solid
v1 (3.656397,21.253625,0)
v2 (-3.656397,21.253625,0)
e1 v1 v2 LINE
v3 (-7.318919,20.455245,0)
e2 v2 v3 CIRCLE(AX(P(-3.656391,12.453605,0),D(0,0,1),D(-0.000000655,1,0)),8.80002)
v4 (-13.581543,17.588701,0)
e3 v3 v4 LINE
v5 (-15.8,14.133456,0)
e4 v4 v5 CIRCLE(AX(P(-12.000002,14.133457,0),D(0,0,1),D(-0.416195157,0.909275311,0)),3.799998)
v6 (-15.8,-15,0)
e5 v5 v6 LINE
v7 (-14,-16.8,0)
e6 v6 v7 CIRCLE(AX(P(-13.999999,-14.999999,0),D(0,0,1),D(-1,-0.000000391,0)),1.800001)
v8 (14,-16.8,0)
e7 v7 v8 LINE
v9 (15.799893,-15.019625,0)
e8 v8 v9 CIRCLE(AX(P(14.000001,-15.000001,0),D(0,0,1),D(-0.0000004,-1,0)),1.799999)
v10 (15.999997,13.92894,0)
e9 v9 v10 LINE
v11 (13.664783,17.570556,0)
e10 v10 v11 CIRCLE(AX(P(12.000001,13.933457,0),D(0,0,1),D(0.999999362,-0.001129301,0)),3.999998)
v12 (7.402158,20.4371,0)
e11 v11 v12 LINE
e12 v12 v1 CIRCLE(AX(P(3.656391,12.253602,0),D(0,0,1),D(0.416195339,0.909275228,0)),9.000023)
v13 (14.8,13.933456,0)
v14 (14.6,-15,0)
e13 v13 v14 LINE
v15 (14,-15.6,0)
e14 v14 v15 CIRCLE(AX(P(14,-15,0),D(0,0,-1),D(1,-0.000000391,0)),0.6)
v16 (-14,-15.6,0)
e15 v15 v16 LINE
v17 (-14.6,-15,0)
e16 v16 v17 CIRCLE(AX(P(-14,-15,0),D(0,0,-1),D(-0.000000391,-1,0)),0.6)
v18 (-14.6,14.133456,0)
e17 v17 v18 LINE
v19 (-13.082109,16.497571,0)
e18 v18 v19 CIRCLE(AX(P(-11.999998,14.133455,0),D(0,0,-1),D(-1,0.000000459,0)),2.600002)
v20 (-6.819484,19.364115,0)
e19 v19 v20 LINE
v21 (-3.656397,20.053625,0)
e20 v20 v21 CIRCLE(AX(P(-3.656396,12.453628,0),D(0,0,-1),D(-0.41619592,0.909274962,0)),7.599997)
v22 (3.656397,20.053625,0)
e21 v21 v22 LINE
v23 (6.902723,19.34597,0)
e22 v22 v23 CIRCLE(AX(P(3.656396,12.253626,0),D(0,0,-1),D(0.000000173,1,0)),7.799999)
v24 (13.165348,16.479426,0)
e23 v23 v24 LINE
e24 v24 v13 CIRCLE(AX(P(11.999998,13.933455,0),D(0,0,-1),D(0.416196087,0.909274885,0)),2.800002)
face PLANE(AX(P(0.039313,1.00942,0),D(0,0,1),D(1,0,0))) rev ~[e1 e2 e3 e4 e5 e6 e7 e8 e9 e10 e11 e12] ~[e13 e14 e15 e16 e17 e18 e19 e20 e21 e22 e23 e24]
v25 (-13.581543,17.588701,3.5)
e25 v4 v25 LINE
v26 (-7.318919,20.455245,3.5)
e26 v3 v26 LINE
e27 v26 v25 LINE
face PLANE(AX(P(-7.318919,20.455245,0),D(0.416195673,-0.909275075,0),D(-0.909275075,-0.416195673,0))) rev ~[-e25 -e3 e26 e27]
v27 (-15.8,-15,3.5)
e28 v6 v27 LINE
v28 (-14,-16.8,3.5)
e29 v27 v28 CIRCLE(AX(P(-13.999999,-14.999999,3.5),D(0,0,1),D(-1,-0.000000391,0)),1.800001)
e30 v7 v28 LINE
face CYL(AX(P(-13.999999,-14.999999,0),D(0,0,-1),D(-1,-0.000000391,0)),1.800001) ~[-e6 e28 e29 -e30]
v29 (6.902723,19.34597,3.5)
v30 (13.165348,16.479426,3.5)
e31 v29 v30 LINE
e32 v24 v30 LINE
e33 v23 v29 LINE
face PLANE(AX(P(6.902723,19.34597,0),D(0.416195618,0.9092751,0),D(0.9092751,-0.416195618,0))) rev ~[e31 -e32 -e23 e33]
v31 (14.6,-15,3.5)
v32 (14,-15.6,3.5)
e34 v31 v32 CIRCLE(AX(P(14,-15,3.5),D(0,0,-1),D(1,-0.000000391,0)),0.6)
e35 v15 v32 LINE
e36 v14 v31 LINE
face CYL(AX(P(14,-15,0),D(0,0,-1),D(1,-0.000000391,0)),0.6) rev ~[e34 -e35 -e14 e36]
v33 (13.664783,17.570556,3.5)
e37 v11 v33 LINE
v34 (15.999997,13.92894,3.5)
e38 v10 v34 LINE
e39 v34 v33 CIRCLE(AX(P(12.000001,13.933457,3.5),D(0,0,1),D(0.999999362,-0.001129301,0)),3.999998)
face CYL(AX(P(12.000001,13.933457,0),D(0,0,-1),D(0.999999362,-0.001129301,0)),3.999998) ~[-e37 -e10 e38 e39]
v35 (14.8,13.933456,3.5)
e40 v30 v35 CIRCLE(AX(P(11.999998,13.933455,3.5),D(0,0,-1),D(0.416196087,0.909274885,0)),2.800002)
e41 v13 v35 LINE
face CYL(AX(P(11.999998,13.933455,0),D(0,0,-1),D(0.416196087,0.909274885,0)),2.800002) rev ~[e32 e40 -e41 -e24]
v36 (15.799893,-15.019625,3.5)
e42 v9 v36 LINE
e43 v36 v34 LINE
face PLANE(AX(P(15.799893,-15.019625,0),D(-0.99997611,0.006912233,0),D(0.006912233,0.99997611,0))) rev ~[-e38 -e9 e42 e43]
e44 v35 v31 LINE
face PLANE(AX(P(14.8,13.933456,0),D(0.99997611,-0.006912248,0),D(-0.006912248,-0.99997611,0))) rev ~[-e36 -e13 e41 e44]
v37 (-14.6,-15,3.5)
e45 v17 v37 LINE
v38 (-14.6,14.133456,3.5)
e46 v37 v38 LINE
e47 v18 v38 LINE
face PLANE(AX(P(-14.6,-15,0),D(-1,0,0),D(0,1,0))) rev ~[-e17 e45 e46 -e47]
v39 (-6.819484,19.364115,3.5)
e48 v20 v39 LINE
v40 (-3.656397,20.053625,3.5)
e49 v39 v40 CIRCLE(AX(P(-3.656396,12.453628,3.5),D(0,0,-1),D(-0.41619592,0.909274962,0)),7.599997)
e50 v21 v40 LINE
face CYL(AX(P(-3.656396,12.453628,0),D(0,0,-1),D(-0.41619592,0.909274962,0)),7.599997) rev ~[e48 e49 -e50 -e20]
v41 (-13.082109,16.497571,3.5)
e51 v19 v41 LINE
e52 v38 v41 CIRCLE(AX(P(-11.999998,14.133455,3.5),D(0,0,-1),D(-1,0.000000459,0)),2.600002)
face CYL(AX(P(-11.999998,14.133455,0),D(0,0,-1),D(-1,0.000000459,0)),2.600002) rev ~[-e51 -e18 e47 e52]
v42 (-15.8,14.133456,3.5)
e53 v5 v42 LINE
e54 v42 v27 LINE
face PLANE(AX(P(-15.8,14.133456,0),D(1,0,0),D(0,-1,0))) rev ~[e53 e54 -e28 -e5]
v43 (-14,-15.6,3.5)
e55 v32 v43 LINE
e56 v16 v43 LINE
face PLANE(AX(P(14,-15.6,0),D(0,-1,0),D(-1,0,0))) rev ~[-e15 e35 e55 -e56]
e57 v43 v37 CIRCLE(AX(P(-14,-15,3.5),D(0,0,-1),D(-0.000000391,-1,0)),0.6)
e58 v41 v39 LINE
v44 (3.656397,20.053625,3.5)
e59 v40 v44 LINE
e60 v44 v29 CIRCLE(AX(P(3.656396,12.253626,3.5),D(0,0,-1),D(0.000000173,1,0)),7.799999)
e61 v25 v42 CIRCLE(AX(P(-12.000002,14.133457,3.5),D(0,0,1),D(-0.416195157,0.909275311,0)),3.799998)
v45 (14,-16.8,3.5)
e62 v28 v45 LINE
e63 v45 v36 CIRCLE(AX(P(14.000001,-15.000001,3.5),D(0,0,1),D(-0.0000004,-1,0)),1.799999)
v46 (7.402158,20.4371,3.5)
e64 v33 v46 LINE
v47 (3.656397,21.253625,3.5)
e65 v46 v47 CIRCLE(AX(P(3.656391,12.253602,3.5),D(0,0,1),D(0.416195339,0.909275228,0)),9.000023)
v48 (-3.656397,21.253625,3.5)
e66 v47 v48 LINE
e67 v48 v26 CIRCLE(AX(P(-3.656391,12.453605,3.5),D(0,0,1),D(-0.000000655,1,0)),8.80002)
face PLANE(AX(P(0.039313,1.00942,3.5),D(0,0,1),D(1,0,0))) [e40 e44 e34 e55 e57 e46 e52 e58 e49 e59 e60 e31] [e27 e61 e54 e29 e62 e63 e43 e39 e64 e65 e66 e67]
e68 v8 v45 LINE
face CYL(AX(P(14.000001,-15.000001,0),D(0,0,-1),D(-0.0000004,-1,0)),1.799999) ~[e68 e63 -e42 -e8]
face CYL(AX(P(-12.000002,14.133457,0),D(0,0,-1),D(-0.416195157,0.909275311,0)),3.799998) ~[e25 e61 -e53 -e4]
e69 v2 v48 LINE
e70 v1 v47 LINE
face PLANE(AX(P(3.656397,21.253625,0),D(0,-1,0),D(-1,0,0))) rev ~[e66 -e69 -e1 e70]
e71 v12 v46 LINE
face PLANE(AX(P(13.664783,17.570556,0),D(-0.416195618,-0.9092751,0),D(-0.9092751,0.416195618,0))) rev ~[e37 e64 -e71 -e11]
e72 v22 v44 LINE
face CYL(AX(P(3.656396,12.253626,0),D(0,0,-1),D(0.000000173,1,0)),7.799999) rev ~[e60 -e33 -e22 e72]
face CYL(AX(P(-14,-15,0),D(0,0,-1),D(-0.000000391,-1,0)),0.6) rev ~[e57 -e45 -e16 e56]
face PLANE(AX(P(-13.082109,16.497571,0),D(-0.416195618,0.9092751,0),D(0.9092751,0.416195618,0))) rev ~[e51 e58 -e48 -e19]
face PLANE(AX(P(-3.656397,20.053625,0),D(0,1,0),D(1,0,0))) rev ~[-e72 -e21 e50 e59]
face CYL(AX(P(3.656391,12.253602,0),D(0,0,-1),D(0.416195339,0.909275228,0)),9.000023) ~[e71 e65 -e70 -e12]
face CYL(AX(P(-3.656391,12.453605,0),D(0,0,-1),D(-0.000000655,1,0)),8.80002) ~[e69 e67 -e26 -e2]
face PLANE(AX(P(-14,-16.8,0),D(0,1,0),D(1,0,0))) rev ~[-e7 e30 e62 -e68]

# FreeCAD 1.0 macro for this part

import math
import FreeCAD as App
import Part
import Sketcher
from FreeCAD import Vector

doc = App.newDocument("Part")
params = doc.addObject("Spreadsheet::Sheet", "Params")
for row, (alias, value) in enumerate([
    ("sketch1_radius", "3.999998 mm"),
    ("sketch1_radius2", "1.800001 mm"),
    ("sketch1_radius3", "1.799999 mm"),
    ("sketch1_radius4", "2.600002 mm"),
    ("sketch1_radius5", "7.799999 mm"),
    ("pad1_length", "3.5 mm"),
], start=1):
    params.set(f"A{row}", alias)
    params.set(f"B{row}", "=" + value)
    params.setAlias(f"B{row}", alias)

body = doc.addObject("PartDesign::Body", "Body")

# Sketch on XY plane
sketch1 = body.newObject("Sketcher::SketchObject", "Sketch")
sketch1.AttachmentSupport = (doc.getObject("XY_Plane"), [""])
sketch1.MapMode = "FlatFace"
sketch1.addGeometry([
    Part.LineSegment(Vector(-7.318919, 20.455245, 0), Vector(-13.581543, 17.588701, 0)),  # 0
    Part.ArcOfCircle(Part.Circle(Vector(-12.000002, 14.133457, 0), Vector(0, 0, 1), 3.799998), math.radians(114.594604), math.radians(180.000015)),  # 1
    Part.LineSegment(Vector(-15.8, 14.133456, 0), Vector(-15.8, -15, 0)),  # 2
    Part.ArcOfCircle(Part.Circle(Vector(-13.999999, -14.999999, 0), Vector(0, 0, 1), 1.800001), math.radians(-179.999978), math.radians(-90.000022)),  # 3
    Part.LineSegment(Vector(-14, -16.8, 0), Vector(14, -16.8, 0)),  # 4
    Part.ArcOfCircle(Part.Circle(Vector(14.000001, -15.000001, 0), Vector(0, 0, 1), 1.799999), math.radians(-90.000023), math.radians(-0.624672)),  # 5
    Part.LineSegment(Vector(15.799893, -15.019625, 0), Vector(15.999997, 13.92894, 0)),  # 6
    Part.ArcOfCircle(Part.Circle(Vector(12.000001, 13.933457, 0), Vector(0, 0, 1), 3.999998), math.radians(-0.064704), math.radians(65.405368)),  # 7
    Part.LineSegment(Vector(13.664783, 17.570556, 0), Vector(7.402158, 20.4371, 0)),  # 8
    Part.ArcOfCircle(Part.Circle(Vector(3.656391, 12.253602, 0), Vector(0, 0, 1), 9.000023), math.radians(65.405385), math.radians(89.999959)),  # 9
    Part.LineSegment(Vector(3.656397, 21.253625, 0), Vector(-3.656397, 21.253625, 0)),  # 10
    Part.ArcOfCircle(Part.Circle(Vector(-3.656391, 12.453605, 0), Vector(0, 0, 1), 8.80002), math.radians(90.000038), math.radians(114.594618)),  # 11
    Part.LineSegment(Vector(-14.6, -15, 0), Vector(-14.6, 14.133456, 0)),  # 12
    Part.ArcOfCircle(Part.Circle(Vector(-11.999998, 14.133455, 0), Vector(0, 0, 1), 2.600002), math.radians(114.594667), math.radians(179.999974)),  # 13
    Part.LineSegment(Vector(-13.082109, 16.497571, 0), Vector(-6.819484, 19.364115, 0)),  # 14
    Part.ArcOfCircle(Part.Circle(Vector(-3.656396, 12.453628, 0), Vector(0, 0, 1), 7.599997), math.radians(90.000005), math.radians(114.594652)),  # 15
    Part.LineSegment(Vector(-3.656397, 20.053625, 0), Vector(3.656397, 20.053625, 0)),  # 16
    Part.ArcOfCircle(Part.Circle(Vector(3.656396, 12.253626, 0), Vector(0, 0, 1), 7.799999), math.radians(65.405352), math.radians(89.99999)),  # 17
    Part.LineSegment(Vector(6.902723, 19.34597, 0), Vector(13.165348, 16.479426, 0)),  # 18
    Part.ArcOfCircle(Part.Circle(Vector(11.999998, 13.933455, 0), Vector(0, 0, 1), 2.800002), math.radians(0.000027), math.radians(65.405338)),  # 19
    Part.LineSegment(Vector(14.8, 13.933456, 0), Vector(14.6, -15, 0)),  # 20
    Part.ArcOfCircle(Part.Circle(Vector(14, -15, 0), Vector(0, 0, 1), 0.6), math.radians(-89.999978), math.radians(-0.000022)),  # 21
    Part.LineSegment(Vector(14, -15.6, 0), Vector(-14, -15.6, 0)),  # 22
    Part.ArcOfCircle(Part.Circle(Vector(-14, -15, 0), Vector(0, 0, 1), 0.6), math.radians(-179.999978), math.radians(-90.000022)),  # 23
], False)
sketch1.addConstraint([
    Sketcher.Constraint("Coincident", 0, 2, 1, 1),
    Sketcher.Constraint("Coincident", 1, 2, 2, 1),
    Sketcher.Constraint("Coincident", 2, 2, 3, 1),
    Sketcher.Constraint("Coincident", 3, 2, 4, 1),
    Sketcher.Constraint("Coincident", 4, 2, 5, 1),
    Sketcher.Constraint("Coincident", 5, 2, 6, 1),
    Sketcher.Constraint("Coincident", 6, 2, 7, 1),
    Sketcher.Constraint("Coincident", 7, 2, 8, 1),
    Sketcher.Constraint("Coincident", 8, 2, 9, 1),
    Sketcher.Constraint("Coincident", 9, 2, 10, 1),
    Sketcher.Constraint("Coincident", 10, 2, 11, 1),
    Sketcher.Constraint("Coincident", 11, 2, 0, 1),
    Sketcher.Constraint("Coincident", 12, 2, 13, 2),
    Sketcher.Constraint("Coincident", 13, 1, 14, 1),
    Sketcher.Constraint("Coincident", 14, 2, 15, 2),
    Sketcher.Constraint("Coincident", 15, 1, 16, 1),
    Sketcher.Constraint("Coincident", 16, 2, 17, 2),
    Sketcher.Constraint("Coincident", 17, 1, 18, 1),
    Sketcher.Constraint("Coincident", 18, 2, 19, 2),
    Sketcher.Constraint("Coincident", 19, 1, 20, 1),
    Sketcher.Constraint("Coincident", 20, 2, 21, 2),
    Sketcher.Constraint("Coincident", 21, 1, 22, 1),
    Sketcher.Constraint("Coincident", 22, 2, 23, 2),
    Sketcher.Constraint("Coincident", 23, 1, 12, 1),
    Sketcher.Constraint("Vertical", 2),
    Sketcher.Constraint("Horizontal", 4),
    Sketcher.Constraint("Horizontal", 10),
    Sketcher.Constraint("Vertical", 12),
    Sketcher.Constraint("Horizontal", 16),
    Sketcher.Constraint("Horizontal", 22),
    Sketcher.Constraint("Coincident", 13, 3, 1, 3),
    Sketcher.Constraint("Coincident", 19, 3, 7, 3),
    Sketcher.Constraint("Coincident", 21, 3, 5, 3),
    Sketcher.Constraint("Coincident", 23, 3, 3, 3),
    Sketcher.Constraint("Radius", 7, 3.999998),
    Sketcher.Constraint("Radius", 3, 1.800001),
    Sketcher.Constraint("Radius", 5, 1.799999),
    Sketcher.Constraint("Radius", 13, 2.600002),
    Sketcher.Constraint("Radius", 17, 7.799999),
    Sketcher.Constraint("Radius", 19, 2.800002),
    Sketcher.Constraint("Radius", 21, 0.6),
    Sketcher.Constraint("DistanceX", 4, 1, 4, 2, 28.0),
    Sketcher.Constraint("DistanceX", 22, 2, 22, 1, 28.0),
    Sketcher.Constraint("DistanceX", 3, 3, -1, 1, 13.999999),
    Sketcher.Constraint("DistanceY", 3, 3, -1, 1, 14.999999),
    Sketcher.Constraint("DistanceX", -1, 1, 5, 3, 14.000001),
    Sketcher.Constraint("DistanceX", -1, 1, 7, 3, 12.000001),
    Sketcher.Constraint("DistanceY", 2, 2, -1, 1, 15.0),
    Sketcher.Constraint("DistanceX", 3, 2, -1, 1, 14.0),
    Sketcher.Constraint("DistanceY", 20, 2, -1, 1, 15.0),
    Sketcher.Constraint("DistanceX", -1, 1, 21, 1, 14.0),
    Sketcher.Constraint("DistanceY", 23, 1, -1, 1, 15.0),
    Sketcher.Constraint("DistanceY", 17, 3, 9, 2, 8.999999),
    Sketcher.Constraint("DistanceY", 7, 3, 1, 3, 0.2),
    Sketcher.Constraint("Radius", 11, 8.80002),
    Sketcher.Constraint("Radius", 9, 9.000023),
    Sketcher.Constraint("Radius", 15, 7.599997),
    Sketcher.Constraint("DistanceY", -1, 1, 0, 2, 17.588701),
    Sketcher.Constraint("DistanceY", -1, 1, 8, 2, 20.4371),
    Sketcher.Constraint("DistanceY", 3, 3, 9, 3, 27.253602),
    Sketcher.Constraint("DistanceX", 13, 3, 15, 3, 8.343602),
    Sketcher.Constraint("DistanceX", 17, 3, 6, 2, 12.343601),
    Sketcher.Constraint("DistanceY", 7, 3, 7, 2, 3.637099),
    Sketcher.Constraint("DistanceX", 9, 2, 19, 3, 8.343601),
    Sketcher.Constraint("DistanceX", 13, 3, 10, 2, 8.343601),
    Sketcher.Constraint("DistanceY", 19, 1, 7, 2, 3.6371),
    Sketcher.Constraint("Distance", 0, 6.887491),
    Sketcher.Constraint("DistanceX", 16, 1, 16, 2, 7.312794),
    Sketcher.Constraint("DistanceY", 2, 2, 2, 1, 29.133456),
    Sketcher.Constraint("DistanceY", 12, 1, 12, 2, 29.133456),
    Sketcher.Constraint("DistanceX", -1, 1, 9, 3, 3.656391),
    Sketcher.Constraint("DistanceX", 11, 3, -1, 1, 3.656391),
    Sketcher.Constraint("DistanceY", -1, 1, 6, 2, 13.92894),
    Sketcher.Constraint("DistanceX", 11, 2, -1, 1, 7.318919),
    Sketcher.Constraint("DistanceX", 13, 1, -1, 1, 13.082109),
    Sketcher.Constraint("DistanceY", -1, 1, 17, 1, 19.34597),
    Sketcher.Constraint("DistanceY", 5, 2, 19, 3, 28.95308),
    Sketcher.Constraint("DistanceY", 14, 2, 11, 2, 1.09113),
    Sketcher.Constraint("DistanceX", 16, 2, 8, 2, 3.745761),
    Sketcher.Constraint("DistanceY", 18, 2, 7, 2, 1.09113),
])
sketch1.setExpression("Constraints[34]", "Params.sketch1_radius")
sketch1.setExpression("Constraints[35]", "Params.sketch1_radius2")
sketch1.setExpression("Constraints[36]", "Params.sketch1_radius3")
sketch1.setExpression("Constraints[37]", "Params.sketch1_radius4")
sketch1.setExpression("Constraints[38]", "Params.sketch1_radius5")
pad1 = body.newObject("PartDesign::Pad", "Pad")
pad1.Profile = sketch1
pad1.setExpression("Length", "Params.pad1_length")

doc.recompute()
